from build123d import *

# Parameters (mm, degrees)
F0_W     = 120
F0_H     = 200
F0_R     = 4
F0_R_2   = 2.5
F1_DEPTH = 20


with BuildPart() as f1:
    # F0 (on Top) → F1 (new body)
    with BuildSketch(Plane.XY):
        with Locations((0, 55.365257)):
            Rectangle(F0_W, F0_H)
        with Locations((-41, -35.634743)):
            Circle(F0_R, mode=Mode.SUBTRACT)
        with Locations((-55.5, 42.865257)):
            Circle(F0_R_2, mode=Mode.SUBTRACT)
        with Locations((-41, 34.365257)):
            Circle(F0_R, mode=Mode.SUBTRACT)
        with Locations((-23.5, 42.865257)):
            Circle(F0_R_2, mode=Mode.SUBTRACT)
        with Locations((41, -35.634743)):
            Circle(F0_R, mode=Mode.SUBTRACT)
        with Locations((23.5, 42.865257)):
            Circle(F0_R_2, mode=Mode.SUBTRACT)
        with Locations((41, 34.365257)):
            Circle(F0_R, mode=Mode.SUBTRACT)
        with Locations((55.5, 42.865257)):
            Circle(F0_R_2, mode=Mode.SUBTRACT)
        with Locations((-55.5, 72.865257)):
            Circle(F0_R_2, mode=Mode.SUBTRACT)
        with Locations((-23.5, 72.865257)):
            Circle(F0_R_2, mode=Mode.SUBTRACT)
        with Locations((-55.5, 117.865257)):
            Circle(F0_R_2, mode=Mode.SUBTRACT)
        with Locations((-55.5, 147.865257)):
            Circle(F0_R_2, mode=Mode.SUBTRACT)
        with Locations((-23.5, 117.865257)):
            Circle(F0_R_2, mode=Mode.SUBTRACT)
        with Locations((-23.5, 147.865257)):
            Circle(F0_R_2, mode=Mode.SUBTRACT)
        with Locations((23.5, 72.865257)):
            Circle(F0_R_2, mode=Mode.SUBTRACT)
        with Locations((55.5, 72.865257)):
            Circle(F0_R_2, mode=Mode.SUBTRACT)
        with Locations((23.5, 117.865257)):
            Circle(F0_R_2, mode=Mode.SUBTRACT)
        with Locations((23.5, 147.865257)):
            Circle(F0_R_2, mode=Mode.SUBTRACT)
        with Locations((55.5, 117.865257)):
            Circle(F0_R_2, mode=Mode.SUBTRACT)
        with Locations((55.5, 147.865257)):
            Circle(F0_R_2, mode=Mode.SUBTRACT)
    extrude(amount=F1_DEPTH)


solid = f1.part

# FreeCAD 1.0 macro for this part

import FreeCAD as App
import Part
import Sketcher
from FreeCAD import Vector

doc = App.newDocument("Part")
params = doc.addObject("Spreadsheet::Sheet", "Params")
for row, (alias, value) in enumerate([
    ("sketch1_diameter", "8 mm"),
    ("sketch1_diameter2", "5 mm"),
    ("sketch1_width", "120 mm"),
    ("sketch1_height", "200 mm"),
    ("pad1_length", "20 mm"),
], start=1):
    params.set(f"A{row}", alias)
    params.set(f"B{row}", "=" + value)
    params.setAlias(f"B{row}", alias)

body = doc.addObject("PartDesign::Body", "Body")

# Sketch on XY plane
sketch1 = body.newObject("Sketcher::SketchObject", "Sketch")
sketch1.AttachmentSupport = (doc.getObject("XY_Plane"), [""])
sketch1.MapMode = "FlatFace"
sketch1.addGeometry([
    Part.LineSegment(Vector(-60, 155.365257, 0), Vector(-60, -44.634743, 0)),  # 0
    Part.LineSegment(Vector(-60, -44.634743, 0), Vector(60, -44.634743, 0)),  # 1
    Part.LineSegment(Vector(60, -44.634743, 0), Vector(60, 155.365257, 0)),  # 2
    Part.LineSegment(Vector(60, 155.365257, 0), Vector(-60, 155.365257, 0)),  # 3
    Part.Circle(Vector(-41, -35.634743, 0), Vector(0, 0, 1), 4),  # 4
    Part.Circle(Vector(-55.5, 42.865257, 0), Vector(0, 0, 1), 2.5),  # 5
    Part.Circle(Vector(-41, 34.365257, 0), Vector(0, 0, 1), 4),  # 6
    Part.Circle(Vector(-23.5, 42.865257, 0), Vector(0, 0, 1), 2.5),  # 7
    Part.Circle(Vector(41, -35.634743, 0), Vector(0, 0, 1), 4),  # 8
    Part.Circle(Vector(23.5, 42.865257, 0), Vector(0, 0, 1), 2.5),  # 9
    Part.Circle(Vector(41, 34.365257, 0), Vector(0, 0, 1), 4),  # 10
    Part.Circle(Vector(55.5, 42.865257, 0), Vector(0, 0, 1), 2.5),  # 11
    Part.Circle(Vector(-55.5, 72.865257, 0), Vector(0, 0, 1), 2.5),  # 12
    Part.Circle(Vector(-23.5, 72.865257, 0), Vector(0, 0, 1), 2.5),  # 13
    Part.Circle(Vector(-55.5, 117.865257, 0), Vector(0, 0, 1), 2.5),  # 14
    Part.Circle(Vector(-55.5, 147.865257, 0), Vector(0, 0, 1), 2.5),  # 15
    Part.Circle(Vector(-23.5, 117.865257, 0), Vector(0, 0, 1), 2.5),  # 16
    Part.Circle(Vector(-23.5, 147.865257, 0), Vector(0, 0, 1), 2.5),  # 17
    Part.Circle(Vector(23.5, 72.865257, 0), Vector(0, 0, 1), 2.5),  # 18
    Part.Circle(Vector(55.5, 72.865257, 0), Vector(0, 0, 1), 2.5),  # 19
    Part.Circle(Vector(23.5, 117.865257, 0), Vector(0, 0, 1), 2.5),  # 20
    Part.Circle(Vector(23.5, 147.865257, 0), Vector(0, 0, 1), 2.5),  # 21
    Part.Circle(Vector(55.5, 117.865257, 0), Vector(0, 0, 1), 2.5),  # 22
    Part.Circle(Vector(55.5, 147.865257, 0), Vector(0, 0, 1), 2.5),  # 23
], False)
sketch1.addConstraint([
    Sketcher.Constraint("Coincident", 0, 2, 1, 1),
    Sketcher.Constraint("Coincident", 1, 2, 2, 1),
    Sketcher.Constraint("Coincident", 2, 2, 3, 1),
    Sketcher.Constraint("Coincident", 3, 2, 0, 1),
    Sketcher.Constraint("Vertical", 0),
    Sketcher.Constraint("Horizontal", 1),
    Sketcher.Constraint("Vertical", 2),
    Sketcher.Constraint("Horizontal", 3),
    Sketcher.Constraint("Equal", 4, 6),
    Sketcher.Constraint("Equal", 5, 7),
    Sketcher.Constraint("Equal", 6, 8),
    Sketcher.Constraint("Equal", 7, 9),
    Sketcher.Constraint("Equal", 8, 10),
    Sketcher.Constraint("Equal", 9, 11),
    Sketcher.Constraint("Equal", 11, 12),
    Sketcher.Constraint("Equal", 12, 13),
    Sketcher.Constraint("Equal", 13, 14),
    Sketcher.Constraint("Equal", 14, 15),
    Sketcher.Constraint("Equal", 15, 16),
    Sketcher.Constraint("Equal", 16, 17),
    Sketcher.Constraint("Equal", 17, 18),
    Sketcher.Constraint("Equal", 18, 19),
    Sketcher.Constraint("Equal", 19, 20),
    Sketcher.Constraint("Equal", 20, 21),
    Sketcher.Constraint("Equal", 21, 22),
    Sketcher.Constraint("Equal", 22, 23),
    Sketcher.Constraint("Symmetric", 4, 3, 8, 3, -2),
    Sketcher.Constraint("Symmetric", 7, 3, 9, 3, -2),
    Sketcher.Constraint("Symmetric", 6, 3, 10, 3, -2),
    Sketcher.Constraint("Symmetric", 5, 3, 11, 3, -2),
    Sketcher.Constraint("Symmetric", 13, 3, 18, 3, -2),
    Sketcher.Constraint("Symmetric", 12, 3, 19, 3, -2),
    Sketcher.Constraint("Symmetric", 16, 3, 20, 3, -2),
    Sketcher.Constraint("Symmetric", 17, 3, 21, 3, -2),
    Sketcher.Constraint("Symmetric", 14, 3, 22, 3, -2),
    Sketcher.Constraint("Symmetric", 15, 3, 23, 3, -2),
    Sketcher.Constraint("Horizontal", 5, 3, 7, 3),
    Sketcher.Constraint("Horizontal", 12, 3, 13, 3),
    Sketcher.Constraint("Horizontal", 14, 3, 16, 3),
    Sketcher.Constraint("Horizontal", 15, 3, 17, 3),
    Sketcher.Constraint("Vertical", 4, 3, 6, 3),
    Sketcher.Constraint("Vertical", 5, 3, 12, 3),
    Sketcher.Constraint("Vertical", 7, 3, 13, 3),
    Sketcher.Constraint("Vertical", 12, 3, 14, 3),
    Sketcher.Constraint("Vertical", 14, 3, 15, 3),
    Sketcher.Constraint("Vertical", 13, 3, 16, 3),
    Sketcher.Constraint("Vertical", 16, 3, 17, 3),
    Sketcher.Constraint("Diameter", 4, 8.0),
    Sketcher.Constraint("Diameter", 5, 5.0),
    Sketcher.Constraint("DistanceX", 1, 1, 1, 2, 120.0),
    Sketcher.Constraint("DistanceY", 0, 2, 0, 1, 200.0),
    Sketcher.Constraint("DistanceX", 4, 3, -1, 1, 41.0),
    Sketcher.Constraint("DistanceX", 0, 2, -1, 1, 60.0),
    Sketcher.Constraint("DistanceY", 4, 3, 6, 3, 70.0),
    Sketcher.Constraint("DistanceX", 5, 3, 7, 3, 32.0),
    Sketcher.Constraint("DistanceX", 7, 3, 9, 3, 47.0),
    Sketcher.Constraint("DistanceY", 5, 3, 12, 3, 30.0),
    Sketcher.Constraint("DistanceY", 12, 3, 14, 3, 45.0),
    Sketcher.Constraint("DistanceY", 14, 3, 15, 3, 30.0),
    Sketcher.Constraint("DistanceY", 0, 2, 4, 3, 9.0),
    Sketcher.Constraint("DistanceY", 4, 3, 5, 3, 78.5),
    Sketcher.Constraint("DistanceY", 4, 3, -1, 1, 35.634743),
])
sketch1.setExpression("Constraints[47]", "Params.sketch1_diameter")
sketch1.setExpression("Constraints[48]", "Params.sketch1_diameter2")
sketch1.setExpression("Constraints[49]", "Params.sketch1_width")
sketch1.setExpression("Constraints[50]", "Params.sketch1_height")
pad1 = body.newObject("PartDesign::Pad", "Pad")
pad1.Profile = sketch1
pad1.setExpression("Length", "Params.pad1_length")

doc.recompute()
